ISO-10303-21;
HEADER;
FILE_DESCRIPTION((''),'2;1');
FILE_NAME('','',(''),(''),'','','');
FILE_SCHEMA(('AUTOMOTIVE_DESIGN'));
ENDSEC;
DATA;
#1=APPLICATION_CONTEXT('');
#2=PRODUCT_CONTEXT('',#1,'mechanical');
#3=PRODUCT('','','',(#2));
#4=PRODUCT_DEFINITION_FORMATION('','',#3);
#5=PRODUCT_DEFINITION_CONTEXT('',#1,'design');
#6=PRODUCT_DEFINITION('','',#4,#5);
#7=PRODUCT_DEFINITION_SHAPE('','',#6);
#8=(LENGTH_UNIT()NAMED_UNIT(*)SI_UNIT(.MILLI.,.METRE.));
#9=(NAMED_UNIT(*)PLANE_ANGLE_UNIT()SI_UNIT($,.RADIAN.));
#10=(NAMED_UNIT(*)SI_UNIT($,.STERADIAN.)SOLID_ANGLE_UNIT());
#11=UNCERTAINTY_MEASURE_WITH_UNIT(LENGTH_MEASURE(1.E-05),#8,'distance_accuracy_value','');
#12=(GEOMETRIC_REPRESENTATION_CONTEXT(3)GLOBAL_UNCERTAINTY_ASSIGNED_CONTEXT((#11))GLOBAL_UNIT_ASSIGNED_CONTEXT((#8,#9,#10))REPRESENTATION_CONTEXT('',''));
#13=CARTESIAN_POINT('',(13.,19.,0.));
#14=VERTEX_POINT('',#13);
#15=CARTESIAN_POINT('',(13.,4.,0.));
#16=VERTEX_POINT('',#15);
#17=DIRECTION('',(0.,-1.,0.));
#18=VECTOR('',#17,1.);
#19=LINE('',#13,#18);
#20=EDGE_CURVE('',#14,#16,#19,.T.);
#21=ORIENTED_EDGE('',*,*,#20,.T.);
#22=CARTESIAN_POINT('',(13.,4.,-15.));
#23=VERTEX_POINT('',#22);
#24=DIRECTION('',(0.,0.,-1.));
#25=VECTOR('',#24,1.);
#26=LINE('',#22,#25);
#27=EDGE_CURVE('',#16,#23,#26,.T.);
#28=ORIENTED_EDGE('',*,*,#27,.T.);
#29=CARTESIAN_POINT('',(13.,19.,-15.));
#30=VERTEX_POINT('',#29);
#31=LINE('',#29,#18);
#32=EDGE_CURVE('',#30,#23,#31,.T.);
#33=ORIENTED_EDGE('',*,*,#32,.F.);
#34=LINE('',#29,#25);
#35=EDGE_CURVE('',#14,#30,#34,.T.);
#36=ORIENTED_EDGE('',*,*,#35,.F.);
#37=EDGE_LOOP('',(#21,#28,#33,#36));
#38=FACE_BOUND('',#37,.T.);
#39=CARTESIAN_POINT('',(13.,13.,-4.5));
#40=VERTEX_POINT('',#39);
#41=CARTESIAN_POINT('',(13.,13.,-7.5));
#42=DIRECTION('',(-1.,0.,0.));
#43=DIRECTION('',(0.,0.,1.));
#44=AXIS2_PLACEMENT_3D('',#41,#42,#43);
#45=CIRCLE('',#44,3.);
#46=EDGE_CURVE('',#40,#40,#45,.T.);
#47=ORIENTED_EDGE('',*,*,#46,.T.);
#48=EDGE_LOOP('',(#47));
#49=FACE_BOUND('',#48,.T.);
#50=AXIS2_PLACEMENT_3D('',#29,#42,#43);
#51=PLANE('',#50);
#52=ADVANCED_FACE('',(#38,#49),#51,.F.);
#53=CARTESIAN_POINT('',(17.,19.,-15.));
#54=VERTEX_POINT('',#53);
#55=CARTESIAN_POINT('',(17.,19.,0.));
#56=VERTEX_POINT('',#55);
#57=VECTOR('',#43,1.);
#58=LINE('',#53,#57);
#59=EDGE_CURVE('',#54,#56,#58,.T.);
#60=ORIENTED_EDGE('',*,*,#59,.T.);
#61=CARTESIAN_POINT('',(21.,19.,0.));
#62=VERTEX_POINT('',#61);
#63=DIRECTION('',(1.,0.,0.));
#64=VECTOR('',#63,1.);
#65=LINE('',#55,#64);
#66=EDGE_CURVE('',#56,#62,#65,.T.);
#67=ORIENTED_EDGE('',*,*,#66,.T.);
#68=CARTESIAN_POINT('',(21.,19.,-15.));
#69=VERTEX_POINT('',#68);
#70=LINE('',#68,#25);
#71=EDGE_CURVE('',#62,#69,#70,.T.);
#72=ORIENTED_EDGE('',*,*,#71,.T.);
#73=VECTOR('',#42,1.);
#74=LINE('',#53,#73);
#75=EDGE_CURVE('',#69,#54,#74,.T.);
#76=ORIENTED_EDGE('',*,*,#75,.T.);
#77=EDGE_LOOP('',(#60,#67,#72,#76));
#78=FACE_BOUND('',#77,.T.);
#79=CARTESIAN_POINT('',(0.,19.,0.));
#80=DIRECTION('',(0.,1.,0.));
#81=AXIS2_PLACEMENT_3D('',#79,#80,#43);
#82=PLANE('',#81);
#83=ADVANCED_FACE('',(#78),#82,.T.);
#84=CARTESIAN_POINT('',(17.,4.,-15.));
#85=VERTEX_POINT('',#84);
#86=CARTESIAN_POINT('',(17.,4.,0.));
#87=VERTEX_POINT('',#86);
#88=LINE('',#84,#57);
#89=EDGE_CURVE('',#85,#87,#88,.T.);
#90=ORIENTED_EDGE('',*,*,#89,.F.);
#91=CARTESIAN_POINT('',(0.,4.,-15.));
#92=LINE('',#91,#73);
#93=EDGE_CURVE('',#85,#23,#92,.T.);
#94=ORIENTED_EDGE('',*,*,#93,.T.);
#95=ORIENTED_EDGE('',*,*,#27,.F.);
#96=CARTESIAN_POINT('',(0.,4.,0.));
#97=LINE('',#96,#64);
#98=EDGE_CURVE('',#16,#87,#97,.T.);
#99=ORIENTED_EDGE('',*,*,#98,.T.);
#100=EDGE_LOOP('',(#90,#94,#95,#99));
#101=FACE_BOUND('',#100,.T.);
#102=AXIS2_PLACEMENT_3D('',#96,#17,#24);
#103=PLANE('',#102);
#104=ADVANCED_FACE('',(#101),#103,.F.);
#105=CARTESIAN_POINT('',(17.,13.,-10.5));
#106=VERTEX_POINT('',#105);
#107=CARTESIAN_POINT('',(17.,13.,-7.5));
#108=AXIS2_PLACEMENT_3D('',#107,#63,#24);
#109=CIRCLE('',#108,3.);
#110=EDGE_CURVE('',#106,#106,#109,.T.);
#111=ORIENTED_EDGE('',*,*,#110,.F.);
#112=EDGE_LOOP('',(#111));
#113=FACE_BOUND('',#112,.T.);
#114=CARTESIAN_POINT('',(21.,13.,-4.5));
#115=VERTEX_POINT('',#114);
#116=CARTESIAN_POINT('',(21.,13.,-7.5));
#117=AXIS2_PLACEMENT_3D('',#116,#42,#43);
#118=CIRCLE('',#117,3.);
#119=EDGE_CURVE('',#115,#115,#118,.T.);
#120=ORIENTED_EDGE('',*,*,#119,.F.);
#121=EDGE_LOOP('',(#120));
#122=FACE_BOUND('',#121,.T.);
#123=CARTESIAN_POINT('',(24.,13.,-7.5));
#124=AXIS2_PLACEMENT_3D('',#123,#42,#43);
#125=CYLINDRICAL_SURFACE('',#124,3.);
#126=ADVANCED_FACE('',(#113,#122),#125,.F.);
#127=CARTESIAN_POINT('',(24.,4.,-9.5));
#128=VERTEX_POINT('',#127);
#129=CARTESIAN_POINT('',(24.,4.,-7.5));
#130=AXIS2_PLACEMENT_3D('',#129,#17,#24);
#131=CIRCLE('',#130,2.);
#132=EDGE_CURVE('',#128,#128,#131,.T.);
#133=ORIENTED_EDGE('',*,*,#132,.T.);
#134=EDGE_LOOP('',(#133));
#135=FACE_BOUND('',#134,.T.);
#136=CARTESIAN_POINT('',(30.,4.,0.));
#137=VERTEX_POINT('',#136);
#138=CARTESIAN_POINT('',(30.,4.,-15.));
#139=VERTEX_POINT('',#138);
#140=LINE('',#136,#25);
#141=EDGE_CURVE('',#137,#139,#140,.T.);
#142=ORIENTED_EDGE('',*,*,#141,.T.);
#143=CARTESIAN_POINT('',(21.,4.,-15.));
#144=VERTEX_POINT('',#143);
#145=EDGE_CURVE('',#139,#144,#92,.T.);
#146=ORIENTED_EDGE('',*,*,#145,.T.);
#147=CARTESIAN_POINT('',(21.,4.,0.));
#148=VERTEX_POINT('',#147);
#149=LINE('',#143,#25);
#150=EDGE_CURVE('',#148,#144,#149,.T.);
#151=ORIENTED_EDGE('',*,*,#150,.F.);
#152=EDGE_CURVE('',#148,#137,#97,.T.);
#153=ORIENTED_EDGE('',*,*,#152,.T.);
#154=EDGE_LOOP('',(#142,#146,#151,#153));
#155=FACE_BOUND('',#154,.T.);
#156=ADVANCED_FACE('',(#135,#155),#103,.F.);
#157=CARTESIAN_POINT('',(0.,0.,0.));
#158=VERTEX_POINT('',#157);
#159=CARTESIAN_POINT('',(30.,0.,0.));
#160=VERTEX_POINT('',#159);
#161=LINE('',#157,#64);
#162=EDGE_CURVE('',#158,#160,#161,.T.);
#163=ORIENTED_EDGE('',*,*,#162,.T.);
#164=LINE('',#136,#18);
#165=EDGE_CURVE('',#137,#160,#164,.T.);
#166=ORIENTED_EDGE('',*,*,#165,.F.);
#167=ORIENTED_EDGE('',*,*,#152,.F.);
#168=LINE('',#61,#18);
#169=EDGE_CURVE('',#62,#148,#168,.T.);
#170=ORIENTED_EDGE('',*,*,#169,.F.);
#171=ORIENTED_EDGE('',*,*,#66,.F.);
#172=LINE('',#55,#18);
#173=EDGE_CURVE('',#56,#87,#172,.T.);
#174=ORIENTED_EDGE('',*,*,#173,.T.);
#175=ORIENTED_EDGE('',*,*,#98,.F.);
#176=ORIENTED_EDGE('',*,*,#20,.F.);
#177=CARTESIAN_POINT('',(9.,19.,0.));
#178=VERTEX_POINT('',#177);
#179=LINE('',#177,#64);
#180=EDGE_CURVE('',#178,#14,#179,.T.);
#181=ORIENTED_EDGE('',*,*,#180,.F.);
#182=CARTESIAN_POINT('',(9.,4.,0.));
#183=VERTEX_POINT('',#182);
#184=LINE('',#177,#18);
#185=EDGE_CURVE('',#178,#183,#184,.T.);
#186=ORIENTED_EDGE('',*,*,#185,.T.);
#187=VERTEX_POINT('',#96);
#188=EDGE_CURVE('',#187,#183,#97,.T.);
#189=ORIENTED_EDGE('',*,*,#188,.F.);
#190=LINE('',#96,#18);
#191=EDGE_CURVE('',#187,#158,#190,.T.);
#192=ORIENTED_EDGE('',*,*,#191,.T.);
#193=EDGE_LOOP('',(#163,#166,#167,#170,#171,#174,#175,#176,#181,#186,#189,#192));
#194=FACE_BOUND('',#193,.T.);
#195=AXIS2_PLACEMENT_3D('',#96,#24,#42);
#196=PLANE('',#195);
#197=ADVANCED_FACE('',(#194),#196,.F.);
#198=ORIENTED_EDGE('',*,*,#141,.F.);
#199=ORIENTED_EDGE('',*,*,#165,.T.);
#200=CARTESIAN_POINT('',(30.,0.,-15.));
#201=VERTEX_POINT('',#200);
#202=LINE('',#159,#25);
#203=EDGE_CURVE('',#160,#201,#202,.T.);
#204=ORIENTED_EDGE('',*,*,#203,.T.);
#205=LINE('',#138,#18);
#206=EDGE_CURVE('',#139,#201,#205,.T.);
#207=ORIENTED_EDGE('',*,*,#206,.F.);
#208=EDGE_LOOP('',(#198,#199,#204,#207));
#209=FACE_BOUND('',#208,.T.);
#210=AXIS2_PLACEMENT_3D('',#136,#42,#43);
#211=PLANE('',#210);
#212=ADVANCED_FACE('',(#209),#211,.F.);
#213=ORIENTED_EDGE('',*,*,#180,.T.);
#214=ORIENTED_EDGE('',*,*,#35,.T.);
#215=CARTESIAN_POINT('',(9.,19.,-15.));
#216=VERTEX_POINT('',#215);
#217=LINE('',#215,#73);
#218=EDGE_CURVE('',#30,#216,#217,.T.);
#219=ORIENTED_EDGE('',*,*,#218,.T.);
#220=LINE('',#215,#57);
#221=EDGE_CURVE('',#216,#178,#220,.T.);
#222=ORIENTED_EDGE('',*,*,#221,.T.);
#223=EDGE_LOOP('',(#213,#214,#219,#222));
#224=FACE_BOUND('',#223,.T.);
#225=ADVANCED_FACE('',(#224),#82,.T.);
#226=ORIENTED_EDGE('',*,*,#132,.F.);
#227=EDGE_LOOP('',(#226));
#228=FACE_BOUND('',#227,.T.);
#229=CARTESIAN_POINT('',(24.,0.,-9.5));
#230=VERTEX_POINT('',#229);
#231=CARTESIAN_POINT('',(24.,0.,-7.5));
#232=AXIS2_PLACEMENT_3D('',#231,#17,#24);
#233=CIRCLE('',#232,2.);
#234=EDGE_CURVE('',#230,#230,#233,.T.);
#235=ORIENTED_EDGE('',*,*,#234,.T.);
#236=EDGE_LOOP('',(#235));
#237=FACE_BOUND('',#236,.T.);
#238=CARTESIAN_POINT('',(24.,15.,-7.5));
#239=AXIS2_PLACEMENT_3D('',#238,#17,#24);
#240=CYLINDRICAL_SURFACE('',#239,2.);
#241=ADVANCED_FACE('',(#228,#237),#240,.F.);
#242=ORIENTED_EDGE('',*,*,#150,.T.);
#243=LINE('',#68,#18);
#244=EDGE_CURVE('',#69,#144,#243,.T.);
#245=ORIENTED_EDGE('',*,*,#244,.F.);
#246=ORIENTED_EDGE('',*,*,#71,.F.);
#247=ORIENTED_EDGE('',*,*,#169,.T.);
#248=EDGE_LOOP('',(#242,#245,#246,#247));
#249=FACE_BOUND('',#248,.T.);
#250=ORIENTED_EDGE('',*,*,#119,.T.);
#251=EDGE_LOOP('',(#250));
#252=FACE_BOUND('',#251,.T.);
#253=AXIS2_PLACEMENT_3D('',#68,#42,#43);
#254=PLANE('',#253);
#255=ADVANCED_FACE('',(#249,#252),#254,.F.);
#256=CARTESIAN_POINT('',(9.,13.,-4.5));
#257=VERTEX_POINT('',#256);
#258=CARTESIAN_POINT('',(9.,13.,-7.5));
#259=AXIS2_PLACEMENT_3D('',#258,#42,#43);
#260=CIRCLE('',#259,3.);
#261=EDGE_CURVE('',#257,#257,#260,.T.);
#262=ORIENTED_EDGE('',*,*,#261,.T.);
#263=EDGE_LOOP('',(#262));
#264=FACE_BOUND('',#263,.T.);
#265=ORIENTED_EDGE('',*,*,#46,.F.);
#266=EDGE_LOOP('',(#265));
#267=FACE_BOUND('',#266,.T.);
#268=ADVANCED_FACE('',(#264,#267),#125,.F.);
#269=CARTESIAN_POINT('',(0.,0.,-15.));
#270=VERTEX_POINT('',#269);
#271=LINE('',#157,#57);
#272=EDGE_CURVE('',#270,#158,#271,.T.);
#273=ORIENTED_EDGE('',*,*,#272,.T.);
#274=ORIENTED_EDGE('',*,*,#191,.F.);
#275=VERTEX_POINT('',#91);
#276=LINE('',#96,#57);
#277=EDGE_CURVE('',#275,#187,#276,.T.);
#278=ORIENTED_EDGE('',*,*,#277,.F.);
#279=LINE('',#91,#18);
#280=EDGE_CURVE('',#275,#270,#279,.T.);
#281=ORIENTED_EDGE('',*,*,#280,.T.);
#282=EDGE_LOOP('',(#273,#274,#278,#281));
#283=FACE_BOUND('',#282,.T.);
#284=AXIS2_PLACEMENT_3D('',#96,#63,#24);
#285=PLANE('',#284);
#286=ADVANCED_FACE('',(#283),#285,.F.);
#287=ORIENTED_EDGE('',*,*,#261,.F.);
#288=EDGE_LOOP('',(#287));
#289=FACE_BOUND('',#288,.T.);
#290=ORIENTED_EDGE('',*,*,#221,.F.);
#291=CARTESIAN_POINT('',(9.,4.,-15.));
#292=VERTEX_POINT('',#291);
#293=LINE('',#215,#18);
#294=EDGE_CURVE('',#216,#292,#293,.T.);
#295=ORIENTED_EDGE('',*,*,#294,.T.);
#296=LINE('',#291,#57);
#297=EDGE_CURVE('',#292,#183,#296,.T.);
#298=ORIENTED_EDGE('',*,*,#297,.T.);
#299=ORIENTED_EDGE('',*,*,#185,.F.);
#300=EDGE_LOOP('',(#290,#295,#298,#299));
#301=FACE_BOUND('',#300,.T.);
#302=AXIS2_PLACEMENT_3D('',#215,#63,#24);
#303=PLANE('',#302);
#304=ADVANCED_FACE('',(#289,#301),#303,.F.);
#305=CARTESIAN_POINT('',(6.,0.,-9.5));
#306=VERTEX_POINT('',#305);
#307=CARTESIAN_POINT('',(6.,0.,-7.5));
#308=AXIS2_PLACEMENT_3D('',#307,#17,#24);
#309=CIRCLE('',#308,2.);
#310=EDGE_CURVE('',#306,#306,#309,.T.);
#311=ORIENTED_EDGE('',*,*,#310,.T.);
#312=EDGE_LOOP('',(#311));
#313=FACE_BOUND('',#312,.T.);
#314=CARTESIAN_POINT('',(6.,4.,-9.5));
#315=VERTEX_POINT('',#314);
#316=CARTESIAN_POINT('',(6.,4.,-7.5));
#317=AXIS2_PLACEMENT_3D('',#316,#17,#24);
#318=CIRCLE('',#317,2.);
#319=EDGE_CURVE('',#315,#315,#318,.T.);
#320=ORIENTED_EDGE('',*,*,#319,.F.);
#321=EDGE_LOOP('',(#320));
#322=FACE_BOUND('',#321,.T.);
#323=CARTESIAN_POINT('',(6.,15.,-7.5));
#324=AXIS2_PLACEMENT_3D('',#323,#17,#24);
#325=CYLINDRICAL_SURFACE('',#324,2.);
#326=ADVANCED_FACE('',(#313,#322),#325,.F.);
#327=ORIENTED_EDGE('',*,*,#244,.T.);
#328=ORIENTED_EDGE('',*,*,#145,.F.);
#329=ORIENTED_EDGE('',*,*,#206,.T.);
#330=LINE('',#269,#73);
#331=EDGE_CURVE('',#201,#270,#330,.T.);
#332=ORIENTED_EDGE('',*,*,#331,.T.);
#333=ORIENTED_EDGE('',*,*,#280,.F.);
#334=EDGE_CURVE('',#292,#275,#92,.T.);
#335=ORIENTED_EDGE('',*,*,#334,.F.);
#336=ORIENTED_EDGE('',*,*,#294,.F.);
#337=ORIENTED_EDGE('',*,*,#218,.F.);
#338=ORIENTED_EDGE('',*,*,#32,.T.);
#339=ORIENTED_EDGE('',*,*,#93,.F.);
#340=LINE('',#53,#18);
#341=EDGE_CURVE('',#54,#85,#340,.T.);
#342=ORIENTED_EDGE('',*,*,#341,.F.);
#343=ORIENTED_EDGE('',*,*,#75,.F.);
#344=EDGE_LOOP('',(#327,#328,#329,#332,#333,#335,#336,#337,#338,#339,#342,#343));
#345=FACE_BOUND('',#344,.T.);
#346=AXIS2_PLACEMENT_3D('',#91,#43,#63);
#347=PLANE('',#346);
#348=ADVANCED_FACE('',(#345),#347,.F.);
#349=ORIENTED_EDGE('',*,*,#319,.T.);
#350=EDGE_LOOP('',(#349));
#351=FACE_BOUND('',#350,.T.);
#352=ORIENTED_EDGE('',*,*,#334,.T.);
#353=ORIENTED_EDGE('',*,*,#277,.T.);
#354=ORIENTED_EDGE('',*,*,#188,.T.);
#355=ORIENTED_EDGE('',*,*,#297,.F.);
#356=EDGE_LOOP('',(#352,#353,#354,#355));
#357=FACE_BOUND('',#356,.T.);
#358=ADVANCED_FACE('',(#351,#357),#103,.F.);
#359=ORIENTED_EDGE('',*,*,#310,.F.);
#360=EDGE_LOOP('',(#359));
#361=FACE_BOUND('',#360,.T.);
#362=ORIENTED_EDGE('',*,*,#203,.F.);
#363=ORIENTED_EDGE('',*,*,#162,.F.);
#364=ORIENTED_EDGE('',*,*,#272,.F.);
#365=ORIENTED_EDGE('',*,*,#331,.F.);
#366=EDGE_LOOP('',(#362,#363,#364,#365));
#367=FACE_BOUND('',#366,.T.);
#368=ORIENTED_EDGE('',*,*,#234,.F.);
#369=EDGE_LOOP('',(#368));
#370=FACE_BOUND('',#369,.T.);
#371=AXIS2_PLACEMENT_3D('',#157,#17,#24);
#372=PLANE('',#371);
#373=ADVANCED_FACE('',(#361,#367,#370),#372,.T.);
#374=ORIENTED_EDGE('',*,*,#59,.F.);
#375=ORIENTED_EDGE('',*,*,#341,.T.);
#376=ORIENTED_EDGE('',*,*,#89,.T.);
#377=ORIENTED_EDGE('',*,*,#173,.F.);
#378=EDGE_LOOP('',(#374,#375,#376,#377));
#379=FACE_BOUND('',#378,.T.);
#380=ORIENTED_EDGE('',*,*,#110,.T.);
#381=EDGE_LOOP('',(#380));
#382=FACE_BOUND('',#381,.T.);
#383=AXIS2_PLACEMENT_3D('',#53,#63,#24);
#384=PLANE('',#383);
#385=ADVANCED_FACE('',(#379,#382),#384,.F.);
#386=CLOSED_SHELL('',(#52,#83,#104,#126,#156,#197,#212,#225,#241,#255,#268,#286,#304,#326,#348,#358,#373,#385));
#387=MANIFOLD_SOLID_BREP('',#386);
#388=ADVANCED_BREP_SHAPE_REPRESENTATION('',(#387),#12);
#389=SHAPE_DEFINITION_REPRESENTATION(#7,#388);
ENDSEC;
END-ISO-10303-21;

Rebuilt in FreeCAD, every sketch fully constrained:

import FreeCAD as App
import Part
import Sketcher
Q = App.Units.Quantity


def add_polygon(sketch, points):
    """Adds a closed chain of lines whose ends are joined by coincident constraints."""
    first, n = sketch.GeometryCount, len(points)
    for a, b in zip(points, points[1:] + points[:1]):
        sketch.addGeometry(Part.LineSegment(App.Vector(*a, 0), App.Vector(*b, 0)), False)
    for i in range(n):
        sketch.addConstraint(Sketcher.Constraint("Coincident", first + i, 2, first + (i + 1) % n, 1))

doc = App.newDocument("Part")
body = doc.addObject("PartDesign::Body", "Body")

# Sketch on XZ plane
sketch1 = doc.addObject("Sketcher::SketchObject", "Sketch")
body.addObject(sketch1)
sketch1.AttachmentSupport = (doc.XZ_Plane, [""])
sketch1.MapMode = "FlatFace"
add_polygon(sketch1, [(0, -15), (0, 0), (30, 0), (30, -15)])  # lines 0-3
sketch1.addConstraint(Sketcher.Constraint("Vertical", 0))
sketch1.addConstraint(Sketcher.Constraint("Horizontal", 1))
sketch1.addConstraint(Sketcher.Constraint("Vertical", 2))
sketch1.addConstraint(Sketcher.Constraint("Horizontal", 3))
sketch1.addConstraint(Sketcher.Constraint("Coincident", 0, 2, -1, 1))
sketch1.addConstraint(Sketcher.Constraint("DistanceX", 1, 1, 1, 2, Q("30 mm")))
sketch1.addConstraint(Sketcher.Constraint("DistanceY", 0, 1, 0, 2, Q("15 mm")))
pad1 = doc.addObject("PartDesign::Pad", "Pad")
body.addObject(pad1)
pad1.Profile = sketch1
pad1.Length = 4
pad1.Reversed = True

# Sketch on XZ plane
sketch2 = doc.addObject("Sketcher::SketchObject", "Sketch001")
body.addObject(sketch2)
sketch2.AttachmentSupport = (doc.XZ_Plane, [""])
sketch2.MapMode = "FlatFace"
sketch2.AttachmentOffset = App.Placement(App.Vector(0, 0, -4), App.Rotation())
add_polygon(sketch2, [(9, -15), (9, 0), (13, 0), (13, -15)])  # lines 0-3
add_polygon(sketch2, [(17, -15), (17, 0), (21, 0), (21, -15)])  # lines 4-7
sketch2.addConstraint(Sketcher.Constraint("Vertical", 0))
sketch2.addConstraint(Sketcher.Constraint("Horizontal", 1))
sketch2.addConstraint(Sketcher.Constraint("Vertical", 2))
sketch2.addConstraint(Sketcher.Constraint("Horizontal", 3))
sketch2.addConstraint(Sketcher.Constraint("Vertical", 4))
sketch2.addConstraint(Sketcher.Constraint("Horizontal", 5))
sketch2.addConstraint(Sketcher.Constraint("Vertical", 6))
sketch2.addConstraint(Sketcher.Constraint("Horizontal", 7))
sketch2.addConstraint(Sketcher.Constraint("PointOnObject", 0, 2, -1))
sketch2.addConstraint(Sketcher.Constraint("PointOnObject", 4, 2, -1))
sketch2.addConstraint(Sketcher.Constraint("Horizontal", 3, 2, 6, 2))
sketch2.addConstraint(Sketcher.Constraint("Equal", 3, 5))
sketch2.addConstraint(Sketcher.Constraint("DistanceX", 1, 1, 1, 2, Q("4 mm")))
sketch2.addConstraint(Sketcher.Constraint("DistanceY", 0, 1, 0, 2, Q("15 mm")))
sketch2.addConstraint(Sketcher.Constraint("DistanceX", -1, 1, 0, 2, Q("9 mm")))
sketch2.addConstraint(Sketcher.Constraint("DistanceX", -1, 1, 4, 2, Q("17 mm")))
pad2 = doc.addObject("PartDesign::Pad", "Pad001")
body.addObject(pad2)
pad2.Profile = sketch2
pad2.Length = 15
pad2.Reversed = True

# Sketch on XZ plane
sketch3 = doc.addObject("Sketcher::SketchObject", "Sketch002")
body.addObject(sketch3)
sketch3.AttachmentSupport = (doc.XZ_Plane, [""])
sketch3.MapMode = "FlatFace"
sketch3.addGeometry(Part.Circle(App.Vector(6, -7.5, 0), App.Vector(0, 0, 1), 2), False)
sketch3.addGeometry(Part.Circle(App.Vector(24, -7.5, 0), App.Vector(0, 0, 1), 2), False)
sketch3.addConstraint(Sketcher.Constraint("Equal", 0, 1))
sketch3.addConstraint(Sketcher.Constraint("Horizontal", 0, 3, 1, 3))
sketch3.addConstraint(Sketcher.Constraint("Diameter", 0, Q("4 mm")))
sketch3.addConstraint(Sketcher.Constraint("DistanceX", -1, 1, 0, 3, Q("6 mm")))
sketch3.addConstraint(Sketcher.Constraint("DistanceX", -1, 1, 1, 3, Q("24 mm")))
sketch3.addConstraint(Sketcher.Constraint("DistanceY", 0, 3, -1, 1, Q("7.5 mm")))
pocket1 = doc.addObject("PartDesign::Pocket", "Pocket")
body.addObject(pocket1)
pocket1.Profile = sketch3
pocket1.Length = 15

# Sketch on YZ plane
sketch4 = doc.addObject("Sketcher::SketchObject", "Sketch003")
body.addObject(sketch4)
sketch4.AttachmentSupport = (doc.YZ_Plane, [""])
sketch4.MapMode = "FlatFace"
sketch4.AttachmentOffset = App.Placement(App.Vector(0, 0, 9), App.Rotation())
sketch4.addGeometry(Part.Circle(App.Vector(13, -7.5, 0), App.Vector(0, 0, 1), 3), False)
sketch4.addConstraint(Sketcher.Constraint("Diameter", 0, Q("6 mm")))
sketch4.addConstraint(Sketcher.Constraint("DistanceX", -1, 1, 0, 3, Q("13 mm")))
sketch4.addConstraint(Sketcher.Constraint("DistanceY", 0, 3, -1, 1, Q("7.5 mm")))
pocket2 = doc.addObject("PartDesign::Pocket", "Pocket001")
body.addObject(pocket2)
pocket2.Profile = sketch4
pocket2.Length = 15
pocket2.Reversed = True

doc.recompute()
